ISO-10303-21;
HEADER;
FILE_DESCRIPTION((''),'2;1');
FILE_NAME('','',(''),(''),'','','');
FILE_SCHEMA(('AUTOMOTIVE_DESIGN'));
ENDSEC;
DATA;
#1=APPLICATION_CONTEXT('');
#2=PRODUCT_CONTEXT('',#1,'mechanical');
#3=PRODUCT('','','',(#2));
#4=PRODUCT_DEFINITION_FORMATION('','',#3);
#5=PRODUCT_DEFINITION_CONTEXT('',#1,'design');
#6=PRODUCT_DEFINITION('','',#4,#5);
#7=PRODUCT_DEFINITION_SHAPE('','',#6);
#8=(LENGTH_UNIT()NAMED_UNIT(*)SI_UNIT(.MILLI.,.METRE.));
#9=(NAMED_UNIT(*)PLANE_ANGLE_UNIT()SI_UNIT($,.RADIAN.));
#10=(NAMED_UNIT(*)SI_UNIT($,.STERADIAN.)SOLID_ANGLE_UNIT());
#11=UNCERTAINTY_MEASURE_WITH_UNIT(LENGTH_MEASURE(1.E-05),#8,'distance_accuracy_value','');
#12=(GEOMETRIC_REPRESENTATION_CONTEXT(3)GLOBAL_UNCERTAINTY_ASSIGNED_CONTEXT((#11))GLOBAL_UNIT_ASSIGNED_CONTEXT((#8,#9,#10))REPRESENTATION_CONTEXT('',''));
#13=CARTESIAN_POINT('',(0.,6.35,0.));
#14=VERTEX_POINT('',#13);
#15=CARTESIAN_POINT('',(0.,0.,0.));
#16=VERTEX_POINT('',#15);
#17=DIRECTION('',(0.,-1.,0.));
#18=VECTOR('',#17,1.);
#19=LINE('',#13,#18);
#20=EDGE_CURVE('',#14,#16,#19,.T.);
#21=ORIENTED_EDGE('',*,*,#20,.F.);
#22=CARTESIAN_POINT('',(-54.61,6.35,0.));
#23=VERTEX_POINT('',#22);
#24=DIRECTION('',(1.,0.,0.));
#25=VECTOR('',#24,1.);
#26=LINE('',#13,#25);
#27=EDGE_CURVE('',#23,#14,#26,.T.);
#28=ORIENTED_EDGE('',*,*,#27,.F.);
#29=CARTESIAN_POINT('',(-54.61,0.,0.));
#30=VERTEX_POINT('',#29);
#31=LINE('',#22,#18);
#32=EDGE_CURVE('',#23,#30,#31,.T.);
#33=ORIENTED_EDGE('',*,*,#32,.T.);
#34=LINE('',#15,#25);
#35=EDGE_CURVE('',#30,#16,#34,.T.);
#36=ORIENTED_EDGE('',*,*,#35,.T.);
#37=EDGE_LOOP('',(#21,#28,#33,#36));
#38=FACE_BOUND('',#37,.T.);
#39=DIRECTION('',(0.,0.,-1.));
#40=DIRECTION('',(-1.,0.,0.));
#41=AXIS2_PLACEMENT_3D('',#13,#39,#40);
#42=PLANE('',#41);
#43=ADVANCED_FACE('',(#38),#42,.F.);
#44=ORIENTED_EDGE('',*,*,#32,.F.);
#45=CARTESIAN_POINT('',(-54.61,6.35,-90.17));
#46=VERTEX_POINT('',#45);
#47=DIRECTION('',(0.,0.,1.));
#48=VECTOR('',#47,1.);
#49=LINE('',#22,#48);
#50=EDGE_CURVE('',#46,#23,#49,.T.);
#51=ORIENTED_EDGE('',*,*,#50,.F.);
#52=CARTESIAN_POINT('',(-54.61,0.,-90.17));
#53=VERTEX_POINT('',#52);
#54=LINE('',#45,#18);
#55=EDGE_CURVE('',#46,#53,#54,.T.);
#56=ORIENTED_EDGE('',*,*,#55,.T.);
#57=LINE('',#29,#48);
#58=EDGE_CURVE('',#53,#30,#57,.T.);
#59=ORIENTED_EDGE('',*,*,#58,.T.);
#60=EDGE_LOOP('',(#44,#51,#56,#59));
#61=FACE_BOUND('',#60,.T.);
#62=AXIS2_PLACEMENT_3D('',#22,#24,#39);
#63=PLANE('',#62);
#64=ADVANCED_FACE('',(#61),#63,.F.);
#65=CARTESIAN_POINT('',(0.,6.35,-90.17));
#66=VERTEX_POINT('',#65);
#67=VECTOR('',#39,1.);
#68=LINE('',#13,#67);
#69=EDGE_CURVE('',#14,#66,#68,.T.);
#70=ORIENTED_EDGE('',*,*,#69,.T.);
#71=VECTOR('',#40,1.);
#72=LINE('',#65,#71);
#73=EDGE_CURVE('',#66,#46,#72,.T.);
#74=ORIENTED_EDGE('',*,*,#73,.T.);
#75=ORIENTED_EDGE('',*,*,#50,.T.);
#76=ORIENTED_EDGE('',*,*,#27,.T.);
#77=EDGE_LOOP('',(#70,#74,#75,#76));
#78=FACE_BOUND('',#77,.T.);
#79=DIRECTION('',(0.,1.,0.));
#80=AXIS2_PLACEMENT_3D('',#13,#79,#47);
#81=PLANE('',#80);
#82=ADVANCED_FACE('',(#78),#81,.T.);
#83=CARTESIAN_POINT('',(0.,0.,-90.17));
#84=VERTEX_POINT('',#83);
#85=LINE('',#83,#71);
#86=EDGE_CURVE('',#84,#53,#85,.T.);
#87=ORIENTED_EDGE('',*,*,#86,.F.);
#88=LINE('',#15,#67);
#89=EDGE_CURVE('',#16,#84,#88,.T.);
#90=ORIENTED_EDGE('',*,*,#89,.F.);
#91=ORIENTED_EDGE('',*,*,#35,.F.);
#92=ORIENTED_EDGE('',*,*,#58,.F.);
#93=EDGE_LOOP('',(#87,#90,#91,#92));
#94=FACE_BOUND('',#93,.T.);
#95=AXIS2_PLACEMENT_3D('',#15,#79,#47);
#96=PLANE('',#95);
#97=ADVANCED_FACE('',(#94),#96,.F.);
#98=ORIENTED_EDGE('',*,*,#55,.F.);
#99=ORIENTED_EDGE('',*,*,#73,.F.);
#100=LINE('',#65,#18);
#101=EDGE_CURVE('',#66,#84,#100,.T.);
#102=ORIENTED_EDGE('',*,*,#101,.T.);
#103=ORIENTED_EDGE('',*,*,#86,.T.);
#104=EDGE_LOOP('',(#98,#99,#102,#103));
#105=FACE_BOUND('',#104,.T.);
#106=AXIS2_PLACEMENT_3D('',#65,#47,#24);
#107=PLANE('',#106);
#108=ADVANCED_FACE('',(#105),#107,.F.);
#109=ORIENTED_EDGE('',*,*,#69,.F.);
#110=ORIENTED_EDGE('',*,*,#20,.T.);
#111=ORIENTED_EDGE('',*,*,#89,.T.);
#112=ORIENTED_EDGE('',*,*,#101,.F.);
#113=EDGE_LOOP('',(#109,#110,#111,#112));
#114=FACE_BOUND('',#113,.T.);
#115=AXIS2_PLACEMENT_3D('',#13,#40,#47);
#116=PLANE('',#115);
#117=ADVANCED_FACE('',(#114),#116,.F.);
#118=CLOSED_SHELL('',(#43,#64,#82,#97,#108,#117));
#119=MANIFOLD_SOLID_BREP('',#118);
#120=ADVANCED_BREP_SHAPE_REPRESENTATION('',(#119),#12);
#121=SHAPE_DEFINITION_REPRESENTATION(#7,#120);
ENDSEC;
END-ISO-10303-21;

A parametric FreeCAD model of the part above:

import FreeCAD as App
import Part
import Sketcher

V = App.Vector
Q = App.Units.Quantity

doc = App.newDocument("Part")
params = doc.addObject("Spreadsheet::Sheet", "Params")
for row, (alias, value) in enumerate([
    ("sketch1_width", "2.15 in"),
    ("sketch1_height", "3.55 in"),
    ("pad1_length", "0.25 in"),
    ("sketch2_width", "2.15 in"),
    ("sketch2_height", "0.25 in"),
    ("pad2_length", "3.55 in"),
], start=1):
    params.set(f"A{row}", alias)
    params.set(f"B{row}", "=" + value)
    params.setAlias(f"B{row}", alias)

body = doc.addObject("PartDesign::Body", "Body")

# Sketch on XZ plane
sketch1 = body.newObject("Sketcher::SketchObject", "Sketch")
sketch1.AttachmentSupport = (doc.getObject("XZ_Plane"), [""])
sketch1.MapMode = "FlatFace"
sketch1.addGeometry(Part.LineSegment(V(-54.61, -90.17, 0), V(-54.61, 0, 0)), False)
sketch1.addGeometry(Part.LineSegment(V(-54.61, 0, 0), V(0, 0, 0)), False)
sketch1.addGeometry(Part.LineSegment(V(0, 0, 0), V(0, -90.17, 0)), False)
sketch1.addGeometry(Part.LineSegment(V(0, -90.17, 0), V(-54.61, -90.17, 0)), False)
sketch1.addConstraint(Sketcher.Constraint("Coincident", 0, 2, 1, 1))
sketch1.addConstraint(Sketcher.Constraint("Coincident", 1, 2, 2, 1))
sketch1.addConstraint(Sketcher.Constraint("Coincident", 2, 2, 3, 1))
sketch1.addConstraint(Sketcher.Constraint("Coincident", 3, 2, 0, 1))
sketch1.addConstraint(Sketcher.Constraint("Vertical", 0))
sketch1.addConstraint(Sketcher.Constraint("Horizontal", 1))
sketch1.addConstraint(Sketcher.Constraint("Vertical", 2))
sketch1.addConstraint(Sketcher.Constraint("Horizontal", 3))
sketch1.addConstraint(Sketcher.Constraint("Coincident", 1, 2, -1, 1))
sketch1.addConstraint(Sketcher.Constraint("DistanceX", 1, 1, 1, 2, Q("2.15 in")))
sketch1.addConstraint(Sketcher.Constraint("DistanceY", 0, 1, 0, 2, Q("3.55 in")))
sketch1.setExpression("Constraints[9]", "Params.sketch1_width")
sketch1.setExpression("Constraints[10]", "Params.sketch1_height")
pad1 = body.newObject("PartDesign::Pad", "Pad")
pad1.Profile = sketch1
pad1.setExpression("Length", "Params.pad1_length")
pad1.Reversed = True

# Sketch on XY plane
sketch2 = body.newObject("Sketcher::SketchObject", "Sketch001")
sketch2.AttachmentSupport = (doc.getObject("XY_Plane"), [""])
sketch2.MapMode = "FlatFace"
sketch2.addGeometry(Part.LineSegment(V(-54.61, 6.35, 0), V(-54.61, 0, 0)), False)
sketch2.addGeometry(Part.LineSegment(V(-54.61, 0, 0), V(0, 0, 0)), False)
sketch2.addGeometry(Part.LineSegment(V(0, 0, 0), V(0, 6.35, 0)), False)
sketch2.addGeometry(Part.LineSegment(V(0, 6.35, 0), V(-54.61, 6.35, 0)), False)
sketch2.addConstraint(Sketcher.Constraint("Coincident", 0, 2, 1, 1))
sketch2.addConstraint(Sketcher.Constraint("Coincident", 1, 2, 2, 1))
sketch2.addConstraint(Sketcher.Constraint("Coincident", 2, 2, 3, 1))
sketch2.addConstraint(Sketcher.Constraint("Coincident", 3, 2, 0, 1))
sketch2.addConstraint(Sketcher.Constraint("Vertical", 0))
sketch2.addConstraint(Sketcher.Constraint("Horizontal", 1))
sketch2.addConstraint(Sketcher.Constraint("Vertical", 2))
sketch2.addConstraint(Sketcher.Constraint("Horizontal", 3))
sketch2.addConstraint(Sketcher.Constraint("Coincident", 1, 2, -1, 1))
sketch2.addConstraint(Sketcher.Constraint("DistanceX", 1, 1, 1, 2, Q("2.15 in")))
sketch2.addConstraint(Sketcher.Constraint("DistanceY", 0, 2, 0, 1, Q("0.25 in")))
sketch2.setExpression("Constraints[9]", "Params.sketch2_width")
sketch2.setExpression("Constraints[10]", "Params.sketch2_height")
pad2 = body.newObject("PartDesign::Pad", "Pad001")
pad2.Profile = sketch2
pad2.setExpression("Length", "Params.pad2_length")
pad2.Reversed = True

doc.recompute()
